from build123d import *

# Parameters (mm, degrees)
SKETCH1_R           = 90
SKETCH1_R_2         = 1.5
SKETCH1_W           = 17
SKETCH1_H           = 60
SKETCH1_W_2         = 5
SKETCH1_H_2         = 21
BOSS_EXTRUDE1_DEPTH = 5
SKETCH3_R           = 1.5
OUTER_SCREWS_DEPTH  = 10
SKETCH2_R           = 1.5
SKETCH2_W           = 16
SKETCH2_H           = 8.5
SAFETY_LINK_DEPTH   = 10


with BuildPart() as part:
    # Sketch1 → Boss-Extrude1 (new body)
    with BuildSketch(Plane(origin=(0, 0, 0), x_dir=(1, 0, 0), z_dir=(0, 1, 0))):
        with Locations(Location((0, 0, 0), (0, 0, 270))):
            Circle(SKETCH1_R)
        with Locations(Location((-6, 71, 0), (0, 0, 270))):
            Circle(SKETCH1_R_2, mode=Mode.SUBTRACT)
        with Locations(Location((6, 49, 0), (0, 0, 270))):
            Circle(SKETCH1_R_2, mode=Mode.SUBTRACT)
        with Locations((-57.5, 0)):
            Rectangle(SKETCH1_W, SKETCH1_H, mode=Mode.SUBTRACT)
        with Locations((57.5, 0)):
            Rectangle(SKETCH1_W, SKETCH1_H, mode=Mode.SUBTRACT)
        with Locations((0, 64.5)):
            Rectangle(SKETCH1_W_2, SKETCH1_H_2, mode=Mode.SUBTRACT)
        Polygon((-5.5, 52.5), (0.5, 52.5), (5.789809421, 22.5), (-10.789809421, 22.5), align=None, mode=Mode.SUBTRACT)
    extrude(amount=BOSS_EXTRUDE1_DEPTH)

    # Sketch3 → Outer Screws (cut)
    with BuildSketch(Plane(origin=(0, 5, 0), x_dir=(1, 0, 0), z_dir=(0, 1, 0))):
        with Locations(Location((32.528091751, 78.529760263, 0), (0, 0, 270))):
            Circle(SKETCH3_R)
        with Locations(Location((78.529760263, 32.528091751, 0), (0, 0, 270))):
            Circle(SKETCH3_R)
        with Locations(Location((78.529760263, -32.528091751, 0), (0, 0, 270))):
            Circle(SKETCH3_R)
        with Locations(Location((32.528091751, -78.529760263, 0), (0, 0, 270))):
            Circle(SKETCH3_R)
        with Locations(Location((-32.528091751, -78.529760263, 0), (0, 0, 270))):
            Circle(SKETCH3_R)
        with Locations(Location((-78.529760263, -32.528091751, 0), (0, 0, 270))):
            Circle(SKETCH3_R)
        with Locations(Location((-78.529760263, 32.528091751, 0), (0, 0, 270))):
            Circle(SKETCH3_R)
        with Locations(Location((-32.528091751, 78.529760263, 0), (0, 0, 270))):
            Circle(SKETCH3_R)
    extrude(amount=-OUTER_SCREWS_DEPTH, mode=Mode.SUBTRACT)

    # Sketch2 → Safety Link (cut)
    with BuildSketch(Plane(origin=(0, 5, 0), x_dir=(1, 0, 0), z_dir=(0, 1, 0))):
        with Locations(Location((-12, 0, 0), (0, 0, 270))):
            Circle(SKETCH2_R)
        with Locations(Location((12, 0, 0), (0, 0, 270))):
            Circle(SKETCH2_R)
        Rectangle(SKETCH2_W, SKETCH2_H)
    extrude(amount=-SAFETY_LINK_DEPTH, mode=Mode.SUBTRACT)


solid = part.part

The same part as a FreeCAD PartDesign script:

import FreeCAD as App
import Part
import Sketcher
Q = App.Units.Quantity


def add_polygon(sketch, points):
    """Adds a closed chain of lines whose ends are joined by coincident constraints."""
    first, n = sketch.GeometryCount, len(points)
    for a, b in zip(points, points[1:] + points[:1]):
        sketch.addGeometry(Part.LineSegment(App.Vector(*a, 0), App.Vector(*b, 0)), False)
    for i in range(n):
        sketch.addConstraint(Sketcher.Constraint("Coincident", first + i, 2, first + (i + 1) % n, 1))

doc = App.newDocument("Part")
body = doc.addObject("PartDesign::Body", "Body")

# Sketch on XZ plane
sketch1 = body.newObject("Sketcher::SketchObject", "Sketch")
sketch1.AttachmentSupport = (doc.getObject("XZ_Plane"), [""])
sketch1.MapMode = "FlatFace"
sketch1.addGeometry(Part.Circle(App.Vector(0, 0, 0), App.Vector(0, 0, 1), 90), False)  # 0
sketch1.addGeometry(Part.Circle(App.Vector(-6, -71, 0), App.Vector(0, 0, 1), 1.5), False)  # 1
add_polygon(sketch1, [(2.5, -54), (-2.5, -54), (-2.5, -75), (2.5, -75)])  # lines 2-5
add_polygon(sketch1, [(-10.8, -22.5), (-5.5, -52.5), (0.5, -52.5), (5.8, -22.5)])  # lines 6-9
add_polygon(sketch1, [(-49, 30), (-66, 30), (-66, -30), (-49, -30)])  # lines 10-13
sketch1.addGeometry(Part.Circle(App.Vector(6, -49, 0), App.Vector(0, 0, 1), 1.5), False)  # 14
add_polygon(sketch1, [(66, 30), (49, 30), (49, -30), (66, -30)])  # lines 15-18
sketch1.addConstraint(Sketcher.Constraint("Horizontal", 2))
sketch1.addConstraint(Sketcher.Constraint("Vertical", 3))
sketch1.addConstraint(Sketcher.Constraint("Horizontal", 4))
sketch1.addConstraint(Sketcher.Constraint("Vertical", 5))
sketch1.addConstraint(Sketcher.Constraint("Horizontal", 7))
sketch1.addConstraint(Sketcher.Constraint("Horizontal", 9))
sketch1.addConstraint(Sketcher.Constraint("Horizontal", 10))
sketch1.addConstraint(Sketcher.Constraint("Vertical", 11))
sketch1.addConstraint(Sketcher.Constraint("Horizontal", 12))
sketch1.addConstraint(Sketcher.Constraint("Vertical", 13))
sketch1.addConstraint(Sketcher.Constraint("Horizontal", 15))
sketch1.addConstraint(Sketcher.Constraint("Vertical", 16))
sketch1.addConstraint(Sketcher.Constraint("Horizontal", 17))
sketch1.addConstraint(Sketcher.Constraint("Vertical", 18))
sketch1.addConstraint(Sketcher.Constraint("Coincident", 0, 3, -1, 1))
sketch1.addConstraint(Sketcher.Constraint("Equal", 1, 14))
sketch1.addConstraint(Sketcher.Constraint("Symmetric", 12, 2, 15, 2, -1, 1))
sketch1.addConstraint(Sketcher.Constraint("Symmetric", 10, 2, 17, 2, -1, 1))
sketch1.addConstraint(Sketcher.Constraint("Horizontal", 13, 2, 15, 2))
sketch1.addConstraint(Sketcher.Constraint("Equal", 6, 8))
sketch1.addConstraint(Sketcher.Constraint("Diameter", 0, Q("180 mm")))
sketch1.addConstraint(Sketcher.Constraint("Diameter", 1, Q("3 mm")))
sketch1.addConstraint(Sketcher.Constraint("DistanceX", 2, 2, 2, 1, Q("5 mm")))
sketch1.addConstraint(Sketcher.Constraint("DistanceX", 7, 1, 7, 2, Q("6 mm")))
sketch1.addConstraint(Sketcher.Constraint("DistanceX", 10, 2, 10, 1, Q("17 mm")))
sketch1.addConstraint(Sketcher.Constraint("DistanceY", 3, 2, 3, 1, Q("21 mm")))
sketch1.addConstraint(Sketcher.Constraint("DistanceY", 11, 2, 11, 1, Q("60 mm")))
sketch1.addConstraint(Sketcher.Constraint("Angle", 6, Q("-80 deg")))
sketch1.addConstraint(Sketcher.Constraint("DistanceX", 1, 3, -1, 1, Q("6 mm")))
sketch1.addConstraint(Sketcher.Constraint("DistanceY", 1, 3, -1, 1, Q("71 mm")))
sketch1.addConstraint(Sketcher.Constraint("DistanceX", -1, 1, 14, 3, Q("6 mm")))
sketch1.addConstraint(Sketcher.Constraint("DistanceY", 14, 3, -1, 1, Q("49 mm")))
sketch1.addConstraint(Sketcher.Constraint("DistanceY", 2, 2, -1, 1, Q("54 mm")))
sketch1.addConstraint(Sketcher.Constraint("DistanceX", 10, 2, -1, 1, Q("66 mm")))
sketch1.addConstraint(Sketcher.Constraint("DistanceX", 6, 2, 2, 2, Q("3 mm")))
sketch1.addConstraint(Sketcher.Constraint("DistanceY", 7, 2, 8, 2, Q("30 mm")))
sketch1.addConstraint(Sketcher.Constraint("DistanceX", 2, 2, -1, 1, Q("2.5 mm")))
sketch1.addConstraint(Sketcher.Constraint("DistanceY", 6, 2, -1, 1, Q("52.5 mm")))
pad1 = body.newObject("PartDesign::Pad", "Pad")
pad1.Profile = sketch1
pad1.Length = 5
pad1.Reversed = True

# Sketch on XZ plane
sketch2 = body.newObject("Sketcher::SketchObject", "Sketch001")
sketch2.AttachmentSupport = (doc.getObject("XZ_Plane"), [""])
sketch2.MapMode = "FlatFace"
sketch2.AttachmentOffset = App.Placement(App.Vector(0, 0, -5), App.Rotation())
sketch2.addGeometry(Part.Circle(App.Vector(32.5, -78.5, 0), App.Vector(0, 0, 1), 1.5), False)
sketch2.addGeometry(Part.Circle(App.Vector(78.5, -32.5, 0), App.Vector(0, 0, 1), 1.5), False)
sketch2.addGeometry(Part.Circle(App.Vector(78.5, 32.5, 0), App.Vector(0, 0, 1), 1.5), False)
sketch2.addGeometry(Part.Circle(App.Vector(32.5, 78.5, 0), App.Vector(0, 0, 1), 1.5), False)
sketch2.addGeometry(Part.Circle(App.Vector(-32.5, 78.5, 0), App.Vector(0, 0, 1), 1.5), False)
sketch2.addGeometry(Part.Circle(App.Vector(-78.5, 32.5, 0), App.Vector(0, 0, 1), 1.5), False)
sketch2.addGeometry(Part.Circle(App.Vector(-78.5, -32.5, 0), App.Vector(0, 0, 1), 1.5), False)
sketch2.addGeometry(Part.Circle(App.Vector(-32.5, -78.5, 0), App.Vector(0, 0, 1), 1.5), False)
sketch2.addConstraint(Sketcher.Constraint("Equal", 0, 1))
sketch2.addConstraint(Sketcher.Constraint("Equal", 1, 2))
sketch2.addConstraint(Sketcher.Constraint("Equal", 2, 3))
sketch2.addConstraint(Sketcher.Constraint("Equal", 3, 4))
sketch2.addConstraint(Sketcher.Constraint("Equal", 4, 5))
sketch2.addConstraint(Sketcher.Constraint("Equal", 5, 6))
sketch2.addConstraint(Sketcher.Constraint("Equal", 6, 7))
sketch2.addConstraint(Sketcher.Constraint("Symmetric", 0, 3, 4, 3, -1, 1))
sketch2.addConstraint(Sketcher.Constraint("Symmetric", 1, 3, 5, 3, -1, 1))
sketch2.addConstraint(Sketcher.Constraint("Symmetric", 2, 3, 6, 3, -1, 1))
sketch2.addConstraint(Sketcher.Constraint("Symmetric", 3, 3, 7, 3, -1, 1))
sketch2.addConstraint(Sketcher.Constraint("Symmetric", 3, 3, 4, 3, -2))
sketch2.addConstraint(Sketcher.Constraint("Symmetric", 2, 3, 5, 3, -2))
sketch2.addConstraint(Sketcher.Constraint("Diameter", 0, Q("3 mm")))
sketch2.addConstraint(Sketcher.Constraint("DistanceX", -1, 1, 0, 3, Q("32.528092 mm")))
sketch2.addConstraint(Sketcher.Constraint("DistanceY", 0, 3, -1, 1, Q("78.52976 mm")))
sketch2.addConstraint(Sketcher.Constraint("DistanceX", -1, 1, 1, 3, Q("78.52976 mm")))
sketch2.addConstraint(Sketcher.Constraint("DistanceY", 1, 3, -1, 1, Q("32.528092 mm")))
pocket1 = body.newObject("PartDesign::Pocket", "Pocket")
pocket1.Profile = sketch2
pocket1.Length = 10
pocket1.Reversed = True

# Sketch on XZ plane
sketch3 = body.newObject("Sketcher::SketchObject", "Sketch002")
sketch3.AttachmentSupport = (doc.getObject("XZ_Plane"), [""])
sketch3.MapMode = "FlatFace"
sketch3.AttachmentOffset = App.Placement(App.Vector(0, 0, -5), App.Rotation())
sketch3.addGeometry(Part.Circle(App.Vector(-12, 0, 0), App.Vector(0, 0, 1), 1.5), False)  # 0
sketch3.addGeometry(Part.Circle(App.Vector(12, 0, 0), App.Vector(0, 0, 1), 1.5), False)  # 1
add_polygon(sketch3, [(-8, -4.2), (-8, 4.2), (8, 4.2), (8, -4.2)])  # lines 2-5
sketch3.addConstraint(Sketcher.Constraint("Vertical", 2))
sketch3.addConstraint(Sketcher.Constraint("Horizontal", 3))
sketch3.addConstraint(Sketcher.Constraint("Vertical", 4))
sketch3.addConstraint(Sketcher.Constraint("Horizontal", 5))
sketch3.addConstraint(Sketcher.Constraint("Equal", 0, 1))
sketch3.addConstraint(Sketcher.Constraint("Symmetric", 0, 3, 1, 3, -1, 1))
sketch3.addConstraint(Sketcher.Constraint("Symmetric", 2, 2, 4, 2, -1, 1))
sketch3.addConstraint(Sketcher.Constraint("PointOnObject", 0, 3, -1))
sketch3.addConstraint(Sketcher.Constraint("Diameter", 0, Q("3 mm")))
sketch3.addConstraint(Sketcher.Constraint("DistanceX", 3, 1, 3, 2, Q("16 mm")))
sketch3.addConstraint(Sketcher.Constraint("DistanceY", 2, 1, 2, 2, Q("8.5 mm")))
sketch3.addConstraint(Sketcher.Constraint("DistanceX", 0, 3, -1, 1, Q("12 mm")))
pocket2 = body.newObject("PartDesign::Pocket", "Pocket001")
pocket2.Profile = sketch3
pocket2.Length = 10
pocket2.Reversed = True

doc.recompute()
